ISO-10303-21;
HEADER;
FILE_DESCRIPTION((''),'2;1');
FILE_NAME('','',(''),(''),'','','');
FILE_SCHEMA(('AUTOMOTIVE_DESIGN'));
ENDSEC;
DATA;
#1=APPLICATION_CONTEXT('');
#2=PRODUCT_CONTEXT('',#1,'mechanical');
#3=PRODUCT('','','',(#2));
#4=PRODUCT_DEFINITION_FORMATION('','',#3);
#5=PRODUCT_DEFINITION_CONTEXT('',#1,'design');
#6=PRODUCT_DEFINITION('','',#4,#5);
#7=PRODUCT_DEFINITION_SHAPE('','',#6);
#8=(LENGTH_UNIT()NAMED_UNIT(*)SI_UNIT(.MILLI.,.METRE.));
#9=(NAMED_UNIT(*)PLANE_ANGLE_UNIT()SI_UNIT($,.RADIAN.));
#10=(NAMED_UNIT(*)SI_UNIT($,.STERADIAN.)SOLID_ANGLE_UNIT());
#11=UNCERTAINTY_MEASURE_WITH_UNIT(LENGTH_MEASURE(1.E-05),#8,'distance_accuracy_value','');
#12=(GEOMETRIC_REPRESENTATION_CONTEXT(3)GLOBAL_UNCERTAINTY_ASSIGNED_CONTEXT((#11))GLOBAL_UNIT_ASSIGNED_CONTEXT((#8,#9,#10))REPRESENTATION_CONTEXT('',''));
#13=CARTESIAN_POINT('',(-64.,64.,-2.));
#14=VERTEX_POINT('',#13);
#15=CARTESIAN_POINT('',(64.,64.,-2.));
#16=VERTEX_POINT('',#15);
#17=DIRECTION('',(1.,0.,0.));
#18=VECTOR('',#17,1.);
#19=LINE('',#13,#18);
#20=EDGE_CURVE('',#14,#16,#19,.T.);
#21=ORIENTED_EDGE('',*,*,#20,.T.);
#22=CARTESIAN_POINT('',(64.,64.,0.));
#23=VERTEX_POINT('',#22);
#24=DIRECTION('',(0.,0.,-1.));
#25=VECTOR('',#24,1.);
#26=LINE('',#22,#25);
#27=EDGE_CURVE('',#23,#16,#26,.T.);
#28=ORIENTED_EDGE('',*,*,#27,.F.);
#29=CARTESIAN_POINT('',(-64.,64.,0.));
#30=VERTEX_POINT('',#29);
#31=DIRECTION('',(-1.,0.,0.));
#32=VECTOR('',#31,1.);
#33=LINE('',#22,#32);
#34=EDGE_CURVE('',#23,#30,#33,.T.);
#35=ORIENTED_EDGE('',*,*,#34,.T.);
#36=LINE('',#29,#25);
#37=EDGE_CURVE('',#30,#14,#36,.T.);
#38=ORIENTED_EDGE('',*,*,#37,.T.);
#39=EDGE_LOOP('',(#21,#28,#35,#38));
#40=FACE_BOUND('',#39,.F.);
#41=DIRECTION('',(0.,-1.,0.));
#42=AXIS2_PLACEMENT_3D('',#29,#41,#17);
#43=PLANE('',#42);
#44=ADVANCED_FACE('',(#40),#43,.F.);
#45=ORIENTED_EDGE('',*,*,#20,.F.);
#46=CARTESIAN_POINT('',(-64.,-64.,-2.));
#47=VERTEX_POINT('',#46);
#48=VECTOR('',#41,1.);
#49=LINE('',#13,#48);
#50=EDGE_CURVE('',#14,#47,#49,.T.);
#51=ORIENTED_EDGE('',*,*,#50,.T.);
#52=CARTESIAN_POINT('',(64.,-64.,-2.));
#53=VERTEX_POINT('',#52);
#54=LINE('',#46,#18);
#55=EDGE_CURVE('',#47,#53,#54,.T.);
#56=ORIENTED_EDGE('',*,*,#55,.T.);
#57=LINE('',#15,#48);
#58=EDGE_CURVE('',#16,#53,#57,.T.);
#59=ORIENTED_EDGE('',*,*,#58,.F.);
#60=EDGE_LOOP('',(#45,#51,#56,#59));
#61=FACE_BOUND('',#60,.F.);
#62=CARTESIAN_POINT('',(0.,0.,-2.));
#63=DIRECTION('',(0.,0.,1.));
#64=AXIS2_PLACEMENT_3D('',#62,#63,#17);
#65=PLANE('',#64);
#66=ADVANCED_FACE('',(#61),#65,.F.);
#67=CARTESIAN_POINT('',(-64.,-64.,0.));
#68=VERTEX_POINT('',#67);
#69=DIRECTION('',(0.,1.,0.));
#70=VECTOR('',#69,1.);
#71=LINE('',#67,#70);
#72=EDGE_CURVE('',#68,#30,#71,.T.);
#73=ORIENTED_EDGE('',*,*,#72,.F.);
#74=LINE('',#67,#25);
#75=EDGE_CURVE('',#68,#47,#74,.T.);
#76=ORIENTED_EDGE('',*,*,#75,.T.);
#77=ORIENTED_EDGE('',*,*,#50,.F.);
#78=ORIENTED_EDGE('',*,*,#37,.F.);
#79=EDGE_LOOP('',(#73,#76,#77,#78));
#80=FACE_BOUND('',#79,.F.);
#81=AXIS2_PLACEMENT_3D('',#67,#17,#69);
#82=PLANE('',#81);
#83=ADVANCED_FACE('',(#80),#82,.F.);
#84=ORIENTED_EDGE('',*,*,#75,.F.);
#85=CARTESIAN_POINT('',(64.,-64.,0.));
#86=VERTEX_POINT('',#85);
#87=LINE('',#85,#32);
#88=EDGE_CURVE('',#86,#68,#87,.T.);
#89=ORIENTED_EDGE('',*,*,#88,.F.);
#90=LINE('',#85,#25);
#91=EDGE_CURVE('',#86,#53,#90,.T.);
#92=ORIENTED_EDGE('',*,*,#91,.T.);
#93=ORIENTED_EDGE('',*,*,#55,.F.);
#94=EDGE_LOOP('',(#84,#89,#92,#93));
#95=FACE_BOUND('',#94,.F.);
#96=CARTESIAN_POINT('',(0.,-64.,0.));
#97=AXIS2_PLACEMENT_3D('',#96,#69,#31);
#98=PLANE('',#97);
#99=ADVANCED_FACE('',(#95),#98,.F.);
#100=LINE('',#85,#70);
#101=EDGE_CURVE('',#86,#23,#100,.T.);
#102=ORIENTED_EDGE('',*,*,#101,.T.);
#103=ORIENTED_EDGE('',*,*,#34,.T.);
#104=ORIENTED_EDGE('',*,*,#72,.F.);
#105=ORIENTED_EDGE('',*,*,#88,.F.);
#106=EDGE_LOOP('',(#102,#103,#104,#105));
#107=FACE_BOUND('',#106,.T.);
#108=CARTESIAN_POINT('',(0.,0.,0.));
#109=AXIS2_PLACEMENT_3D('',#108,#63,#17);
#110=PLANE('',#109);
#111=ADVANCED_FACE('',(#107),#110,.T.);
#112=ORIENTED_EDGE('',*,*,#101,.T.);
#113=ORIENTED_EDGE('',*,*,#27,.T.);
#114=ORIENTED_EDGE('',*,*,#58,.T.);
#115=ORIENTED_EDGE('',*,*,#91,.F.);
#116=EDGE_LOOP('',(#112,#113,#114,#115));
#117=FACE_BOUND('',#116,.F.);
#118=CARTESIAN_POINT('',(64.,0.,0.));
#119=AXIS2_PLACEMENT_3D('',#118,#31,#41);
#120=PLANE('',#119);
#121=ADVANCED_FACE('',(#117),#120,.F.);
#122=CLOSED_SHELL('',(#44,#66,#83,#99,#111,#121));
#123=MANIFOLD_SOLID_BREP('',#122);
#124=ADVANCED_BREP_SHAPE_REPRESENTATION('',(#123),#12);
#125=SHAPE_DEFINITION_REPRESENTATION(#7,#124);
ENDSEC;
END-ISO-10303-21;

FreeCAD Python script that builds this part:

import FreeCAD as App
import Part
import Sketcher
Q = App.Units.Quantity

doc = App.newDocument("Part")
body = doc.addObject("PartDesign::Body", "Body")

# Sketch on XY plane
sketch1 = body.newObject("Sketcher::SketchObject", "Sketch")
sketch1.AttachmentSupport = (doc.getObject("XY_Plane"), [""])
sketch1.MapMode = "FlatFace"
sketch1.addGeometry([
    Part.LineSegment(App.Vector(-64, -64, 0), App.Vector(64, -64, 0)),
    Part.LineSegment(App.Vector(64, -64, 0), App.Vector(64, 64, 0)),
    Part.LineSegment(App.Vector(64, 64, 0), App.Vector(-64, 64, 0)),
    Part.LineSegment(App.Vector(-64, 64, 0), App.Vector(-64, -64, 0)),
], False)
sketch1.addConstraint([
    Sketcher.Constraint("Coincident", 0, 2, 1, 1),
    Sketcher.Constraint("Coincident", 1, 2, 2, 1),
    Sketcher.Constraint("Coincident", 2, 2, 3, 1),
    Sketcher.Constraint("Coincident", 3, 2, 0, 1),
    Sketcher.Constraint("Horizontal", 0),
    Sketcher.Constraint("Vertical", 1),
    Sketcher.Constraint("Horizontal", 2),
    Sketcher.Constraint("Vertical", 3),
    Sketcher.Constraint("Symmetric", 0, 2, 2, 2, -1, 1),
    Sketcher.Constraint("Equal", 2, 1),
    Sketcher.Constraint("DistanceX", 0, 1, 0, 2, Q("128 mm")),
])
pad1 = body.newObject("PartDesign::Pad", "Pad")
pad1.Profile = sketch1
pad1.Length = 2
pad1.Reversed = True

doc.recompute()
